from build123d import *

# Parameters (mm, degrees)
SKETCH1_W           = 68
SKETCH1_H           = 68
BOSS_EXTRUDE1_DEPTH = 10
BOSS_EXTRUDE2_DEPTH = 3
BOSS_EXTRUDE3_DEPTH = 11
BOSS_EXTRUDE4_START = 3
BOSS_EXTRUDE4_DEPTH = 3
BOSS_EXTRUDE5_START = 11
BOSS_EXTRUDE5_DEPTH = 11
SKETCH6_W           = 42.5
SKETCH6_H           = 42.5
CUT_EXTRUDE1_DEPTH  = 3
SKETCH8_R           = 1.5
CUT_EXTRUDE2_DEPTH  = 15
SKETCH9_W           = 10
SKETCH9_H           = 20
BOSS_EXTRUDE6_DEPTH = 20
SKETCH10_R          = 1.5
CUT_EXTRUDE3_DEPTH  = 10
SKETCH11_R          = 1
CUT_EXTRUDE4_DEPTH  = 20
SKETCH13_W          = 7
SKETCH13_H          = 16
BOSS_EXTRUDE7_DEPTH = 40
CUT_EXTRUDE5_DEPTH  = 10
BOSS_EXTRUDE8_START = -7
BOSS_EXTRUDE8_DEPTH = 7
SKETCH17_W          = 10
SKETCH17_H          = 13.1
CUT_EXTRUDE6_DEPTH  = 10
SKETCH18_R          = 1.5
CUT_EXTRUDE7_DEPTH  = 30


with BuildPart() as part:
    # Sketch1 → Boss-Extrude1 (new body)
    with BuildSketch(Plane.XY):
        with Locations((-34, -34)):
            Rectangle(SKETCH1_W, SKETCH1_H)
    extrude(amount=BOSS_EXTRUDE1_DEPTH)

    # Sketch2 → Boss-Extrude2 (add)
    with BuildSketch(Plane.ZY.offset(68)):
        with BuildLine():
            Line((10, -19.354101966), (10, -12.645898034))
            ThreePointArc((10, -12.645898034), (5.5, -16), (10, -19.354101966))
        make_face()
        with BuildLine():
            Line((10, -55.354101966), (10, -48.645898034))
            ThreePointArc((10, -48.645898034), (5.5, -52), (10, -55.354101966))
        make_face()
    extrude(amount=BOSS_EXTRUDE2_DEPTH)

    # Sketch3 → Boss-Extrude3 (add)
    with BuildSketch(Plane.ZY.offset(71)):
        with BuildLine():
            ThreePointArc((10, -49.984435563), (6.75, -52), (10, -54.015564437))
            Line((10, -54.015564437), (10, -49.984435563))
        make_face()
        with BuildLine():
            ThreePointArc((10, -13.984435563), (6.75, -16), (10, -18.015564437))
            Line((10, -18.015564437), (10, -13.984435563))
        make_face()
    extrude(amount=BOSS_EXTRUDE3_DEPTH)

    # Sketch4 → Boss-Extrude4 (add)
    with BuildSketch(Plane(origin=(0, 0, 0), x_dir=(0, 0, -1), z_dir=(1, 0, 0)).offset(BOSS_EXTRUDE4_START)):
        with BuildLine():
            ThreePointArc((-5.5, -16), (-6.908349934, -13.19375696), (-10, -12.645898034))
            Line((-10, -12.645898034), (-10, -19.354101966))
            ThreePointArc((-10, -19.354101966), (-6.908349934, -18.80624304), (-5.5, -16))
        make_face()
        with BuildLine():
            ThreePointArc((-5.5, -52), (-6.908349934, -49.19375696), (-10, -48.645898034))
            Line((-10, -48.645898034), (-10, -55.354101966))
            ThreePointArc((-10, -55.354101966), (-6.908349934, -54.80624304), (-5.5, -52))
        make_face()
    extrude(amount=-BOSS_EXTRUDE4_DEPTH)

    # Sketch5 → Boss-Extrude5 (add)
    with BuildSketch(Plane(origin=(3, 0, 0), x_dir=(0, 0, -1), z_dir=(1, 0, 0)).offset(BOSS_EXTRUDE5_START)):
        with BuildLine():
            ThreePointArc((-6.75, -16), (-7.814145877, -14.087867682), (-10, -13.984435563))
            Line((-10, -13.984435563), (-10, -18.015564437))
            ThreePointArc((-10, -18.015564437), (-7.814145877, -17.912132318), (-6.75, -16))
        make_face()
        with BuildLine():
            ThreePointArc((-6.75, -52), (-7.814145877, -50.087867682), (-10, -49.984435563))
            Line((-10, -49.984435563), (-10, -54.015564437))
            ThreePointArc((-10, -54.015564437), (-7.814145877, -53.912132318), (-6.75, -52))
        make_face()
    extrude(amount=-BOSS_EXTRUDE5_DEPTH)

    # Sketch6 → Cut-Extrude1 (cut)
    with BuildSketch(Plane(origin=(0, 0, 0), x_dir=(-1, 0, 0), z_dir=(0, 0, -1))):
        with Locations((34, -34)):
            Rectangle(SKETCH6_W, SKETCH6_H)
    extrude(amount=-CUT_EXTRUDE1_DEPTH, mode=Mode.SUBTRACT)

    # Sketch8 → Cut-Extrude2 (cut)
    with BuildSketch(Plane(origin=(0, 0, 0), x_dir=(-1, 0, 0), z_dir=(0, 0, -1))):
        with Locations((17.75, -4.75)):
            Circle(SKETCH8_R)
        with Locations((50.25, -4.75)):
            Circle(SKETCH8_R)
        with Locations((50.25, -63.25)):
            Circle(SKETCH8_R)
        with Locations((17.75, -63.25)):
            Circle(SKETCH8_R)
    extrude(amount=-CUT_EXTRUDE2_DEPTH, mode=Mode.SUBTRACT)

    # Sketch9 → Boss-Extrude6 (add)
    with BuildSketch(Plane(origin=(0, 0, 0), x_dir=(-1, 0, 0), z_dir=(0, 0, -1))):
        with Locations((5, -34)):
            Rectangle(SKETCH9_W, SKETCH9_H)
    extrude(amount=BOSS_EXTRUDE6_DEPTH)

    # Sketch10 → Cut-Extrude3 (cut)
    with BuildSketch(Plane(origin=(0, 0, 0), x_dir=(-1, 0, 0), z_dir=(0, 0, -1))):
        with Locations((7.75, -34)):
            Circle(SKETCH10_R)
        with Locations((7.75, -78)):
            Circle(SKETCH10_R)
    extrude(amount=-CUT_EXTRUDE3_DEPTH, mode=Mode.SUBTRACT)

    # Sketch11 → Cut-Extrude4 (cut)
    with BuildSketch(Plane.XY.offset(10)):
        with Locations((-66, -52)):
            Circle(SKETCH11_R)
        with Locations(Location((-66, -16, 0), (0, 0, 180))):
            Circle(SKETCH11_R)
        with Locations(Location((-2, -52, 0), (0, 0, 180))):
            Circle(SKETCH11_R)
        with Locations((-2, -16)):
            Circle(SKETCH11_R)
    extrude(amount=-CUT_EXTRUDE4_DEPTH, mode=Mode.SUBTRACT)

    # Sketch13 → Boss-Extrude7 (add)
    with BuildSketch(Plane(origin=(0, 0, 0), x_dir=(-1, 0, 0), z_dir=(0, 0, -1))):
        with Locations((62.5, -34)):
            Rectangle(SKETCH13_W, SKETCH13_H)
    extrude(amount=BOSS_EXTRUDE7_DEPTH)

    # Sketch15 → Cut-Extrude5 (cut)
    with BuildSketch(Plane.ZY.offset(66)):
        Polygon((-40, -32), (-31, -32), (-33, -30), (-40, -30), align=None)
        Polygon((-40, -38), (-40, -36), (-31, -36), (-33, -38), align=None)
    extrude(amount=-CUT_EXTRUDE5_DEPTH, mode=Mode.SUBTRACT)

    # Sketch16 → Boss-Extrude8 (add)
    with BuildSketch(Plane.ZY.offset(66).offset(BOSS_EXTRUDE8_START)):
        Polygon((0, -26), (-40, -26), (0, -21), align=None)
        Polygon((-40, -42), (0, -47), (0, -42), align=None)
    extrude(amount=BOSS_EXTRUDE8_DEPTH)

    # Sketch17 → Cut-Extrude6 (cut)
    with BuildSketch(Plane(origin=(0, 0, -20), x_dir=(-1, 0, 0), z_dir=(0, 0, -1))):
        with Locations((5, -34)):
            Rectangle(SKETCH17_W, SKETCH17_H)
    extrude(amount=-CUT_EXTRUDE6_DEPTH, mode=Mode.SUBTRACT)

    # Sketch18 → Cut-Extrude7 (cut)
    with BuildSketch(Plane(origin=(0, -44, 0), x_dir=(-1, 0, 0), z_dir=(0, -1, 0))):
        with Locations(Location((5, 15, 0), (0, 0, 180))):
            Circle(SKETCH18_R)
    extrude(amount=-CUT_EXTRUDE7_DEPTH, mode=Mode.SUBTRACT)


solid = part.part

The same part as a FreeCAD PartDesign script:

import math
import FreeCAD as App
import Part
import Sketcher

V = App.Vector


def add_polygon(sketch, points):
    """Adds a closed chain of lines whose ends are joined by coincident constraints."""
    first, n = sketch.GeometryCount, len(points)
    for a, b in zip(points, points[1:] + points[:1]):
        sketch.addGeometry(Part.LineSegment(App.Vector(*a, 0), App.Vector(*b, 0)), False)
    for i in range(n):
        sketch.addConstraint(Sketcher.Constraint("Coincident", first + i, 2, first + (i + 1) % n, 1))

doc = App.newDocument("Part")
body = doc.addObject("PartDesign::Body", "Body")

sketch1 = doc.addObject("Sketcher::SketchObject", "Sketch")
body.addObject(sketch1)
sketch1.AttachmentSupport = (doc.XY_Plane, [""])
sketch1.MapMode = "FlatFace"
add_polygon(sketch1, [(-68, 0), (-68, -68), (0, -68), (0, 0)])
sketch1.addConstraint(Sketcher.Constraint("Vertical", 0))
sketch1.addConstraint(Sketcher.Constraint("Horizontal", 1))
sketch1.addConstraint(Sketcher.Constraint("Vertical", 2))
sketch1.addConstraint(Sketcher.Constraint("Horizontal", 3))
sketch1.addConstraint(Sketcher.Constraint("Coincident", 2, 2, -1, 1))
sketch1.addConstraint(Sketcher.Constraint("Equal", 3, 0))
sketch1.addConstraint(Sketcher.Constraint("DistanceX", 1, 1, 1, 2, 68.0))
pad1 = doc.addObject("PartDesign::Pad", "Pad")
body.addObject(pad1)
pad1.Profile = sketch1
pad1.Length = 10

sketch2 = doc.addObject("Sketcher::SketchObject", "Sketch001")
body.addObject(sketch2)
sketch2.AttachmentSupport = (doc.YZ_Plane, [""])
sketch2.MapMode = "FlatFace"
sketch2.AttachmentOffset = App.Placement(V(0, 0, -68), App.Rotation())
sketch2.addGeometry(Part.LineSegment(V(-19.354102, 10, 0), V(-12.645898, 10, 0)), False)
sketch2.addGeometry(Part.ArcOfCircle(Part.Circle(V(-16, 9, 0), V(0, 0, 1), 3.5), math.radians(163.39845), math.radians(376.60155)), False)
sketch2.addGeometry(Part.LineSegment(V(-55.354102, 10, 0), V(-48.645898, 10, 0)), False)
sketch2.addGeometry(Part.ArcOfCircle(Part.Circle(V(-52, 9, 0), V(0, 0, 1), 3.5), math.radians(163.39845), math.radians(376.60155)), False)
sketch2.addConstraint(Sketcher.Constraint("Coincident", 0, 1, 1, 1))
sketch2.addConstraint(Sketcher.Constraint("Coincident", 1, 2, 0, 2))
sketch2.addConstraint(Sketcher.Constraint("Coincident", 2, 1, 3, 1))
sketch2.addConstraint(Sketcher.Constraint("Coincident", 3, 2, 2, 2))
sketch2.addConstraint(Sketcher.Constraint("Horizontal", 0))
sketch2.addConstraint(Sketcher.Constraint("Horizontal", 2))
sketch2.addConstraint(Sketcher.Constraint("Equal", 1, 3))
sketch2.addConstraint(Sketcher.Constraint("Horizontal", 1, 3, 3, 3))
sketch2.addConstraint(Sketcher.Constraint("Horizontal", 1, 2, 2, 1))
sketch2.addConstraint(Sketcher.Constraint("Radius", 1, 3.5))
sketch2.addConstraint(Sketcher.Constraint("DistanceX", 1, 3, -1, 1, 16.0))
sketch2.addConstraint(Sketcher.Constraint("DistanceY", -1, 1, 1, 3, 9.0))
sketch2.addConstraint(Sketcher.Constraint("DistanceX", 3, 3, -1, 1, 52.0))
sketch2.addConstraint(Sketcher.Constraint("DistanceY", -1, 1, 0, 1, 10.0))
pad2 = doc.addObject("PartDesign::Pad", "Pad001")
body.addObject(pad2)
pad2.Profile = sketch2
pad2.Length = 3
pad2.Reversed = True

sketch3 = doc.addObject("Sketcher::SketchObject", "Sketch002")
body.addObject(sketch3)
sketch3.AttachmentSupport = (doc.YZ_Plane, [""])
sketch3.MapMode = "FlatFace"
sketch3.AttachmentOffset = App.Placement(V(0, 0, -71), App.Rotation())
sketch3.addGeometry(Part.ArcOfCircle(Part.Circle(V(-52, 9, 0), V(0, 0, 1), 2.25), math.radians(153.6122), math.radians(386.3878)), False)
sketch3.addGeometry(Part.LineSegment(V(-54.015564, 10, 0), V(-49.984436, 10, 0)), False)
sketch3.addGeometry(Part.ArcOfCircle(Part.Circle(V(-16, 9, 0), V(0, 0, 1), 2.25), math.radians(153.6122), math.radians(386.3878)), False)
sketch3.addGeometry(Part.LineSegment(V(-18.015564, 10, 0), V(-13.984436, 10, 0)), False)
sketch3.addConstraint(Sketcher.Constraint("Coincident", 0, 1, 1, 1))
sketch3.addConstraint(Sketcher.Constraint("Coincident", 1, 2, 0, 2))
sketch3.addConstraint(Sketcher.Constraint("Coincident", 2, 1, 3, 1))
sketch3.addConstraint(Sketcher.Constraint("Coincident", 3, 2, 2, 2))
sketch3.addConstraint(Sketcher.Constraint("Horizontal", 1))
sketch3.addConstraint(Sketcher.Constraint("Horizontal", 3))
sketch3.addConstraint(Sketcher.Constraint("Equal", 0, 2))
sketch3.addConstraint(Sketcher.Constraint("Horizontal", 0, 3, 2, 3))
sketch3.addConstraint(Sketcher.Constraint("Horizontal", 1, 2, 2, 1))
sketch3.addConstraint(Sketcher.Constraint("Radius", 0, 2.25))
sketch3.addConstraint(Sketcher.Constraint("DistanceX", 0, 3, -1, 1, 52.0))
sketch3.addConstraint(Sketcher.Constraint("DistanceY", -1, 1, 0, 3, 9.0))
sketch3.addConstraint(Sketcher.Constraint("DistanceX", 2, 3, -1, 1, 16.0))
sketch3.addConstraint(Sketcher.Constraint("DistanceY", -1, 1, 0, 1, 10.0))
pad3 = doc.addObject("PartDesign::Pad", "Pad002")
body.addObject(pad3)
pad3.Profile = sketch3
pad3.Length = 11
pad3.Reversed = True

sketch4 = doc.addObject("Sketcher::SketchObject", "Sketch003")
body.addObject(sketch4)
sketch4.AttachmentSupport = (doc.YZ_Plane, [""])
sketch4.MapMode = "FlatFace"
sketch4.AttachmentOffset = App.Placement(V(0, 0, 3), App.Rotation())
sketch4.addGeometry(Part.ArcOfCircle(Part.Circle(V(-16, 9, 0), V(0, 0, 1), 3.5), math.radians(-90), math.radians(16.60155)), False)
sketch4.addGeometry(Part.LineSegment(V(-12.645898, 10, 0), V(-19.354102, 10, 0)), False)
sketch4.addGeometry(Part.ArcOfCircle(Part.Circle(V(-16, 9, 0), V(0, 0, 1), 3.5), math.radians(163.39845), math.radians(270)), False)
sketch4.addGeometry(Part.ArcOfCircle(Part.Circle(V(-52, 9, 0), V(0, 0, 1), 3.5), math.radians(-90), math.radians(16.60155)), False)
sketch4.addGeometry(Part.LineSegment(V(-48.645898, 10, 0), V(-55.354102, 10, 0)), False)
sketch4.addGeometry(Part.ArcOfCircle(Part.Circle(V(-52, 9, 0), V(0, 0, 1), 3.5), math.radians(163.39845), math.radians(270)), False)
sketch4.addConstraint(Sketcher.Constraint("Coincident", 0, 2, 1, 1))
sketch4.addConstraint(Sketcher.Constraint("Coincident", 1, 2, 2, 1))
sketch4.addConstraint(Sketcher.Constraint("Tangent", 2, 2, 0, 1))
sketch4.addConstraint(Sketcher.Constraint("Coincident", 3, 2, 4, 1))
sketch4.addConstraint(Sketcher.Constraint("Coincident", 4, 2, 5, 1))
sketch4.addConstraint(Sketcher.Constraint("Tangent", 5, 2, 3, 1))
sketch4.addConstraint(Sketcher.Constraint("Horizontal", 1))
sketch4.addConstraint(Sketcher.Constraint("Horizontal", 4))
sketch4.addConstraint(Sketcher.Constraint("Equal", 0, 2))
sketch4.addConstraint(Sketcher.Constraint("Equal", 2, 3))
sketch4.addConstraint(Sketcher.Constraint("Equal", 3, 5))
sketch4.addConstraint(Sketcher.Constraint("Horizontal", 2, 3, 3, 3))
sketch4.addConstraint(Sketcher.Constraint("Horizontal", 1, 2, 3, 2))
sketch4.addConstraint(Sketcher.Constraint("Vertical", 0, 3, 2, 2))
sketch4.addConstraint(Sketcher.Constraint("Vertical", 3, 3, 5, 2))
sketch4.addConstraint(Sketcher.Constraint("Radius", 0, 3.5))
sketch4.addConstraint(Sketcher.Constraint("DistanceX", 0, 3, -1, 1, 16.0))
sketch4.addConstraint(Sketcher.Constraint("DistanceY", -1, 1, 0, 3, 9.0))
sketch4.addConstraint(Sketcher.Constraint("DistanceX", 3, 3, -1, 1, 52.0))
sketch4.addConstraint(Sketcher.Constraint("DistanceY", -1, 1, 0, 2, 10.0))
pad4 = doc.addObject("PartDesign::Pad", "Pad003")
body.addObject(pad4)
pad4.Profile = sketch4
pad4.Length = 3
pad4.Reversed = True

sketch5 = doc.addObject("Sketcher::SketchObject", "Sketch004")
body.addObject(sketch5)
sketch5.AttachmentSupport = (doc.YZ_Plane, [""])
sketch5.MapMode = "FlatFace"
sketch5.AttachmentOffset = App.Placement(V(0, 0, 14), App.Rotation())
sketch5.addGeometry(Part.ArcOfCircle(Part.Circle(V(-16, 9, 0), V(0, 0, 1), 2.25), math.radians(-90), math.radians(26.3878)), False)
sketch5.addGeometry(Part.LineSegment(V(-13.984436, 10, 0), V(-18.015564, 10, 0)), False)
sketch5.addGeometry(Part.ArcOfCircle(Part.Circle(V(-16, 9, 0), V(0, 0, 1), 2.25), math.radians(153.6122), math.radians(270)), False)
sketch5.addGeometry(Part.ArcOfCircle(Part.Circle(V(-52, 9, 0), V(0, 0, 1), 2.25), math.radians(-90), math.radians(26.3878)), False)
sketch5.addGeometry(Part.LineSegment(V(-49.984436, 10, 0), V(-54.015564, 10, 0)), False)
sketch5.addGeometry(Part.ArcOfCircle(Part.Circle(V(-52, 9, 0), V(0, 0, 1), 2.25), math.radians(153.6122), math.radians(270)), False)
sketch5.addConstraint(Sketcher.Constraint("Coincident", 0, 2, 1, 1))
sketch5.addConstraint(Sketcher.Constraint("Coincident", 1, 2, 2, 1))
sketch5.addConstraint(Sketcher.Constraint("Tangent", 2, 2, 0, 1))
sketch5.addConstraint(Sketcher.Constraint("Coincident", 3, 2, 4, 1))
sketch5.addConstraint(Sketcher.Constraint("Coincident", 4, 2, 5, 1))
sketch5.addConstraint(Sketcher.Constraint("Tangent", 5, 2, 3, 1))
sketch5.addConstraint(Sketcher.Constraint("Horizontal", 1))
sketch5.addConstraint(Sketcher.Constraint("Horizontal", 4))
sketch5.addConstraint(Sketcher.Constraint("Equal", 0, 2))
sketch5.addConstraint(Sketcher.Constraint("Equal", 2, 3))
sketch5.addConstraint(Sketcher.Constraint("Equal", 3, 5))
sketch5.addConstraint(Sketcher.Constraint("Horizontal", 2, 3, 3, 3))
sketch5.addConstraint(Sketcher.Constraint("Horizontal", 1, 2, 3, 2))
sketch5.addConstraint(Sketcher.Constraint("Vertical", 0, 3, 2, 2))
sketch5.addConstraint(Sketcher.Constraint("Vertical", 3, 3, 5, 2))
sketch5.addConstraint(Sketcher.Constraint("Radius", 0, 2.25))
sketch5.addConstraint(Sketcher.Constraint("DistanceX", 0, 3, -1, 1, 16.0))
sketch5.addConstraint(Sketcher.Constraint("DistanceY", -1, 1, 0, 3, 9.0))
sketch5.addConstraint(Sketcher.Constraint("DistanceX", 3, 3, -1, 1, 52.0))
sketch5.addConstraint(Sketcher.Constraint("DistanceY", -1, 1, 0, 2, 10.0))
pad5 = doc.addObject("PartDesign::Pad", "Pad004")
body.addObject(pad5)
pad5.Profile = sketch5
pad5.Length = 11
pad5.Reversed = True

sketch6 = doc.addObject("Sketcher::SketchObject", "Sketch005")
body.addObject(sketch6)
sketch6.AttachmentSupport = (doc.XY_Plane, [""])
sketch6.MapMode = "FlatFace"
add_polygon(sketch6, [(-12.75, -12.75), (-12.75, -55.25), (-55.25, -55.25), (-55.25, -12.75)])
sketch6.addConstraint(Sketcher.Constraint("Vertical", 0))
sketch6.addConstraint(Sketcher.Constraint("Horizontal", 1))
sketch6.addConstraint(Sketcher.Constraint("Vertical", 2))
sketch6.addConstraint(Sketcher.Constraint("Horizontal", 3))
sketch6.addConstraint(Sketcher.Constraint("Equal", 3, 0))
sketch6.addConstraint(Sketcher.Constraint("DistanceX", 1, 2, 1, 1, 42.5))
sketch6.addConstraint(Sketcher.Constraint("DistanceX", 0, 2, -1, 1, 12.75))
sketch6.addConstraint(Sketcher.Constraint("DistanceY", 0, 2, -1, 1, 55.25))
pocket1 = doc.addObject("PartDesign::Pocket", "Pocket")
body.addObject(pocket1)
pocket1.Profile = sketch6
pocket1.Length = 3
pocket1.Reversed = True

sketch7 = doc.addObject("Sketcher::SketchObject", "Sketch006")
body.addObject(sketch7)
sketch7.AttachmentSupport = (doc.XY_Plane, [""])
sketch7.MapMode = "FlatFace"
sketch7.addGeometry(Part.Circle(V(-17.75, -4.75, 0), V(0, 0, 1), 1.5), False)
sketch7.addGeometry(Part.Circle(V(-50.25, -4.75, 0), V(0, 0, 1), 1.5), False)
sketch7.addGeometry(Part.Circle(V(-50.25, -63.25, 0), V(0, 0, 1), 1.5), False)
sketch7.addGeometry(Part.Circle(V(-17.75, -63.25, 0), V(0, 0, 1), 1.5), False)
sketch7.addConstraint(Sketcher.Constraint("Equal", 0, 1))
sketch7.addConstraint(Sketcher.Constraint("Equal", 1, 2))
sketch7.addConstraint(Sketcher.Constraint("Equal", 2, 3))
sketch7.addConstraint(Sketcher.Constraint("Horizontal", 0, 3, 1, 3))
sketch7.addConstraint(Sketcher.Constraint("Horizontal", 2, 3, 3, 3))
sketch7.addConstraint(Sketcher.Constraint("Vertical", 1, 3, 2, 3))
sketch7.addConstraint(Sketcher.Constraint("Vertical", 0, 3, 3, 3))
sketch7.addConstraint(Sketcher.Constraint("Diameter", 0, 3.0))
sketch7.addConstraint(Sketcher.Constraint("DistanceX", 1, 3, 0, 3, 32.5))
sketch7.addConstraint(Sketcher.Constraint("DistanceY", 2, 3, 1, 3, 58.5))
sketch7.addConstraint(Sketcher.Constraint("DistanceX", 0, 3, -1, 1, 17.75))
sketch7.addConstraint(Sketcher.Constraint("DistanceY", 0, 3, -1, 1, 4.75))
pocket2 = doc.addObject("PartDesign::Pocket", "Pocket001")
body.addObject(pocket2)
pocket2.Profile = sketch7
pocket2.Length = 15
pocket2.Reversed = True

sketch8 = doc.addObject("Sketcher::SketchObject", "Sketch007")
body.addObject(sketch8)
sketch8.AttachmentSupport = (doc.XY_Plane, [""])
sketch8.MapMode = "FlatFace"
add_polygon(sketch8, [(0, -24), (0, -44), (-10, -44), (-10, -24)])
sketch8.addConstraint(Sketcher.Constraint("Vertical", 0))
sketch8.addConstraint(Sketcher.Constraint("Horizontal", 1))
sketch8.addConstraint(Sketcher.Constraint("Vertical", 2))
sketch8.addConstraint(Sketcher.Constraint("Horizontal", 3))
sketch8.addConstraint(Sketcher.Constraint("PointOnObject", 0, 2, -2))
sketch8.addConstraint(Sketcher.Constraint("DistanceX", 1, 2, 1, 1, 10.0))
sketch8.addConstraint(Sketcher.Constraint("DistanceY", 0, 2, 0, 1, 20.0))
sketch8.addConstraint(Sketcher.Constraint("DistanceY", 0, 2, -1, 1, 44.0))
pad6 = doc.addObject("PartDesign::Pad", "Pad005")
body.addObject(pad6)
pad6.Profile = sketch8
pad6.Length = 20
pad6.Reversed = True

sketch9 = doc.addObject("Sketcher::SketchObject", "Sketch008")
body.addObject(sketch9)
sketch9.AttachmentSupport = (doc.XY_Plane, [""])
sketch9.MapMode = "FlatFace"
sketch9.addGeometry(Part.Circle(V(-7.75, -34, 0), V(0, 0, 1), 1.5), False)
sketch9.addGeometry(Part.Circle(V(-7.75, -78, 0), V(0, 0, 1), 1.5), False)
sketch9.addConstraint(Sketcher.Constraint("Equal", 0, 1))
sketch9.addConstraint(Sketcher.Constraint("Vertical", 0, 3, 1, 3))
sketch9.addConstraint(Sketcher.Constraint("Diameter", 0, 3.0))
sketch9.addConstraint(Sketcher.Constraint("DistanceY", 0, 3, -1, 1, 34.0))
sketch9.addConstraint(Sketcher.Constraint("DistanceY", 1, 3, -1, 1, 78.0))
sketch9.addConstraint(Sketcher.Constraint("DistanceX", 0, 3, -1, 1, 7.75))
pocket3 = doc.addObject("PartDesign::Pocket", "Pocket002")
body.addObject(pocket3)
pocket3.Profile = sketch9
pocket3.Length = 10
pocket3.Reversed = True

sketch10 = doc.addObject("Sketcher::SketchObject", "Sketch009")
body.addObject(sketch10)
sketch10.AttachmentSupport = (doc.XY_Plane, [""])
sketch10.MapMode = "FlatFace"
sketch10.AttachmentOffset = App.Placement(V(0, 0, 10), App.Rotation())
sketch10.addGeometry(Part.Circle(V(-66, -52, 0), V(0, 0, 1), 1), False)
sketch10.addGeometry(Part.Circle(V(-66, -16, 0), V(0, 0, 1), 1), False)
sketch10.addGeometry(Part.Circle(V(-2, -52, 0), V(0, 0, 1), 1), False)
sketch10.addGeometry(Part.Circle(V(-2, -16, 0), V(0, 0, 1), 1), False)
sketch10.addConstraint(Sketcher.Constraint("Equal", 0, 1))
sketch10.addConstraint(Sketcher.Constraint("Equal", 1, 2))
sketch10.addConstraint(Sketcher.Constraint("Equal", 2, 3))
sketch10.addConstraint(Sketcher.Constraint("Horizontal", 0, 3, 2, 3))
sketch10.addConstraint(Sketcher.Constraint("Horizontal", 1, 3, 3, 3))
sketch10.addConstraint(Sketcher.Constraint("Vertical", 0, 3, 1, 3))
sketch10.addConstraint(Sketcher.Constraint("Vertical", 2, 3, 3, 3))
sketch10.addConstraint(Sketcher.Constraint("Diameter", 0, 2.0))
sketch10.addConstraint(Sketcher.Constraint("DistanceX", 0, 3, -1, 1, 66.0))
sketch10.addConstraint(Sketcher.Constraint("DistanceY", 0, 3, -1, 1, 52.0))
sketch10.addConstraint(Sketcher.Constraint("DistanceY", 1, 3, -1, 1, 16.0))
sketch10.addConstraint(Sketcher.Constraint("DistanceX", 2, 3, -1, 1, 2.0))
pocket4 = doc.addObject("PartDesign::Pocket", "Pocket003")
body.addObject(pocket4)
pocket4.Profile = sketch10
pocket4.Length = 20

sketch11 = doc.addObject("Sketcher::SketchObject", "Sketch010")
body.addObject(sketch11)
sketch11.AttachmentSupport = (doc.XY_Plane, [""])
sketch11.MapMode = "FlatFace"
add_polygon(sketch11, [(-59, -26), (-59, -42), (-66, -42), (-66, -26)])
sketch11.addConstraint(Sketcher.Constraint("Vertical", 0))
sketch11.addConstraint(Sketcher.Constraint("Horizontal", 1))
sketch11.addConstraint(Sketcher.Constraint("Vertical", 2))
sketch11.addConstraint(Sketcher.Constraint("Horizontal", 3))
sketch11.addConstraint(Sketcher.Constraint("DistanceX", 1, 2, 1, 1, 7.0))
sketch11.addConstraint(Sketcher.Constraint("DistanceY", 0, 2, 0, 1, 16.0))
sketch11.addConstraint(Sketcher.Constraint("DistanceX", 0, 2, -1, 1, 59.0))
sketch11.addConstraint(Sketcher.Constraint("DistanceY", 0, 2, -1, 1, 42.0))
pad7 = doc.addObject("PartDesign::Pad", "Pad006")
body.addObject(pad7)
pad7.Profile = sketch11
pad7.Length = 40
pad7.Reversed = True

sketch12 = doc.addObject("Sketcher::SketchObject", "Sketch011")
body.addObject(sketch12)
sketch12.AttachmentSupport = (doc.YZ_Plane, [""])
sketch12.MapMode = "FlatFace"
sketch12.AttachmentOffset = App.Placement(V(0, 0, -66), App.Rotation())
add_polygon(sketch12, [(-32, -40), (-32, -31), (-30, -33), (-30, -40)])
add_polygon(sketch12, [(-36, -40), (-38, -40), (-38, -33), (-36, -31)])
sketch12.addConstraint(Sketcher.Constraint("Vertical", 0))
sketch12.addConstraint(Sketcher.Constraint("Vertical", 2))
sketch12.addConstraint(Sketcher.Constraint("Horizontal", 3))
sketch12.addConstraint(Sketcher.Constraint("Horizontal", 4))
sketch12.addConstraint(Sketcher.Constraint("Vertical", 5))
sketch12.addConstraint(Sketcher.Constraint("Vertical", 7))
sketch12.addConstraint(Sketcher.Constraint("Perpendicular", 1, 6))
sketch12.addConstraint(Sketcher.Constraint("Horizontal", 3, 2, 4, 2))
sketch12.addConstraint(Sketcher.Constraint("Horizontal", 1, 2, 5, 2))
sketch12.addConstraint(Sketcher.Constraint("Horizontal", 0, 2, 6, 2))
sketch12.addConstraint(Sketcher.Constraint("Equal", 3, 4))
sketch12.addConstraint(Sketcher.Constraint("DistanceX", 3, 2, 3, 1, 2.0))
sketch12.addConstraint(Sketcher.Constraint("DistanceY", 0, 1, 0, 2, 9.0))
sketch12.addConstraint(Sketcher.Constraint("DistanceX", 0, 2, -1, 1, 32.0))
sketch12.addConstraint(Sketcher.Constraint("DistanceY", 0, 2, -1, 1, 31.0))
sketch12.addConstraint(Sketcher.Constraint("DistanceX", 4, 2, -1, 1, 38.0))
pocket5 = doc.addObject("PartDesign::Pocket", "Pocket004")
body.addObject(pocket5)
pocket5.Profile = sketch12
pocket5.Length = 10
pocket5.Reversed = True

sketch13 = doc.addObject("Sketcher::SketchObject", "Sketch012")
body.addObject(sketch13)
sketch13.AttachmentSupport = (doc.YZ_Plane, [""])
sketch13.MapMode = "FlatFace"
sketch13.AttachmentOffset = App.Placement(V(0, 0, -59), App.Rotation())
add_polygon(sketch13, [(-26, -40), (-26, 0), (-21, 0)])
add_polygon(sketch13, [(-42, -40), (-47, 0), (-42, 0)])
sketch13.addConstraint(Sketcher.Constraint("Vertical", 0))
sketch13.addConstraint(Sketcher.Constraint("Horizontal", 1))
sketch13.addConstraint(Sketcher.Constraint("Horizontal", 4))
sketch13.addConstraint(Sketcher.Constraint("Vertical", 5))
sketch13.addConstraint(Sketcher.Constraint("PointOnObject", 0, 2, -1))
sketch13.addConstraint(Sketcher.Constraint("PointOnObject", 3, 2, -1))
sketch13.addConstraint(Sketcher.Constraint("Horizontal", 2, 2, 5, 2))
sketch13.addConstraint(Sketcher.Constraint("Equal", 1, 4))
sketch13.addConstraint(Sketcher.Constraint("DistanceX", 1, 1, 1, 2, 5.0))
sketch13.addConstraint(Sketcher.Constraint("DistanceY", 0, 1, 0, 2, 40.0))
sketch13.addConstraint(Sketcher.Constraint("DistanceX", 0, 2, -1, 1, 26.0))
sketch13.addConstraint(Sketcher.Constraint("DistanceX", 3, 2, -1, 1, 47.0))
pad8 = doc.addObject("PartDesign::Pad", "Pad007")
body.addObject(pad8)
pad8.Profile = sketch13
pad8.Length = 7
pad8.Reversed = True

sketch14 = doc.addObject("Sketcher::SketchObject", "Sketch013")
body.addObject(sketch14)
sketch14.AttachmentSupport = (doc.XY_Plane, [""])
sketch14.MapMode = "FlatFace"
sketch14.AttachmentOffset = App.Placement(V(0, 0, -20), App.Rotation())
add_polygon(sketch14, [(0, -27.45), (0, -40.55), (-10, -40.55), (-10, -27.45)])
sketch14.addConstraint(Sketcher.Constraint("Vertical", 0))
sketch14.addConstraint(Sketcher.Constraint("Horizontal", 1))
sketch14.addConstraint(Sketcher.Constraint("Vertical", 2))
sketch14.addConstraint(Sketcher.Constraint("Horizontal", 3))
sketch14.addConstraint(Sketcher.Constraint("PointOnObject", 0, 2, -2))
sketch14.addConstraint(Sketcher.Constraint("DistanceX", 1, 2, 1, 1, 10.0))
sketch14.addConstraint(Sketcher.Constraint("DistanceY", 0, 2, 0, 1, 13.1))
sketch14.addConstraint(Sketcher.Constraint("DistanceY", 0, 2, -1, 1, 40.55))
pocket6 = doc.addObject("PartDesign::Pocket", "Pocket005")
body.addObject(pocket6)
pocket6.Profile = sketch14
pocket6.Length = 10
pocket6.Reversed = True

sketch15 = doc.addObject("Sketcher::SketchObject", "Sketch014")
body.addObject(sketch15)
sketch15.AttachmentSupport = (doc.XZ_Plane, [""])
sketch15.MapMode = "FlatFace"
sketch15.AttachmentOffset = App.Placement(V(0, 0, 44), App.Rotation())
sketch15.addGeometry(Part.Circle(V(-5, -15, 0), V(0, 0, 1), 1.5), False)
sketch15.addConstraint(Sketcher.Constraint("Diameter", 0, 3.0))
sketch15.addConstraint(Sketcher.Constraint("DistanceX", 0, 3, -1, 1, 5.0))
sketch15.addConstraint(Sketcher.Constraint("DistanceY", 0, 3, -1, 1, 15.0))
pocket7 = doc.addObject("PartDesign::Pocket", "Pocket006")
body.addObject(pocket7)
pocket7.Profile = sketch15
pocket7.Length = 30

doc.recompute()
